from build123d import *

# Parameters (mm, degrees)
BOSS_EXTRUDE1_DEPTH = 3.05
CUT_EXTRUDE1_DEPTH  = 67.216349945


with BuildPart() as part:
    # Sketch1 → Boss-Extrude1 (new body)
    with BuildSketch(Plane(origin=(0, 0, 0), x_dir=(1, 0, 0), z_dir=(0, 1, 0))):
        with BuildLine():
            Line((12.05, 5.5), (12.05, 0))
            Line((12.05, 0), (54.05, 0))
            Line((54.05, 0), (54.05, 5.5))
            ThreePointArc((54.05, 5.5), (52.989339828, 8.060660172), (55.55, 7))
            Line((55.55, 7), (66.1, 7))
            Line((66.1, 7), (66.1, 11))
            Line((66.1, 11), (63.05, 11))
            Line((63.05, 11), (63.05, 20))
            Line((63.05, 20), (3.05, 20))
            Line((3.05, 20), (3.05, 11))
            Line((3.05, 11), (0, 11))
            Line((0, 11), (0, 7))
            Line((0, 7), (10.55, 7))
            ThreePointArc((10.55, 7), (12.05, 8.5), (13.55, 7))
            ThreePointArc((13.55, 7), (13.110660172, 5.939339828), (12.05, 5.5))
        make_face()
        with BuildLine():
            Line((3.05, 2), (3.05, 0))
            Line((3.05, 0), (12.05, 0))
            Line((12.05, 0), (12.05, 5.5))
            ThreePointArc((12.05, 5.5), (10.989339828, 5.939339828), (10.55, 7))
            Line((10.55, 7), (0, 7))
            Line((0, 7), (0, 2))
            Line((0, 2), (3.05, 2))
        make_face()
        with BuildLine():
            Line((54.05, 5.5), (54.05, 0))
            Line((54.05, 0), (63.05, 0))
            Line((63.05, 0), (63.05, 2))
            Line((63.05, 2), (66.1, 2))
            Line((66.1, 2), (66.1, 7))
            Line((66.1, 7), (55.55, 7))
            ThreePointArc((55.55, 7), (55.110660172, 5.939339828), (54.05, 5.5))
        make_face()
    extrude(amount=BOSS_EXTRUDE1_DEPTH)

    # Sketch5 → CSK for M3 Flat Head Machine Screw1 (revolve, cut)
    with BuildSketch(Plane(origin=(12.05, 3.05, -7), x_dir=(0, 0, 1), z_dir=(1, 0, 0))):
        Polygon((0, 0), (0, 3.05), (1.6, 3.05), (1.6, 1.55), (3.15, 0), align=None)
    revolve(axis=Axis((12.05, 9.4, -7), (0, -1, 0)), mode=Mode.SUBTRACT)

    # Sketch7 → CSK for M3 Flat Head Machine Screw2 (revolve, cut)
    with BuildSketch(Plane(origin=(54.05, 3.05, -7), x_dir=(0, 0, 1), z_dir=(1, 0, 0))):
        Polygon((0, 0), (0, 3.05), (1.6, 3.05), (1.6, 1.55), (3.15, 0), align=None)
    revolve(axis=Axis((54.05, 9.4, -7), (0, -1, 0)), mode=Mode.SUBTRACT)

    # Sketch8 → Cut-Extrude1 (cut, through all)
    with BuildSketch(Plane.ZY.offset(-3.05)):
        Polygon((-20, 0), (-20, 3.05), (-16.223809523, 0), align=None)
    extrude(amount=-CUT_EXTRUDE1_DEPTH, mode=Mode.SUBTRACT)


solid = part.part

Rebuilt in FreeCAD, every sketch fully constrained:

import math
import FreeCAD as App
import Part
import Sketcher
from FreeCAD import Vector
Q = App.Units.Quantity

doc = App.newDocument("Part")
body = doc.addObject("PartDesign::Body", "Body")

# Sketch on XZ plane
sketch1 = body.newObject("Sketcher::SketchObject", "Sketch")
sketch1.AttachmentSupport = (doc.getObject("XZ_Plane"), [""])
sketch1.MapMode = "FlatFace"
sketch1.addGeometry([
    Part.LineSegment(Vector(66.1, -11, 0), Vector(63, -11, 0)),  # 0
    Part.LineSegment(Vector(63, -11, 0), Vector(63, -20, 0)),  # 1
    Part.LineSegment(Vector(63, -20, 0), Vector(3, -20, 0)),  # 2
    Part.LineSegment(Vector(3, -20, 0), Vector(3, -11, 0)),  # 3
    Part.LineSegment(Vector(3, -11, 0), Vector(0, -11, 0)),  # 4
    Part.LineSegment(Vector(0, -11, 0), Vector(0, -2, 0)),  # 5
    Part.LineSegment(Vector(0, -2, 0), Vector(3, -2, 0)),  # 6
    Part.LineSegment(Vector(3, -2, 0), Vector(3, 0, 0)),  # 7
    Part.LineSegment(Vector(3, 0, 0), Vector(63, 0, 0)),  # 8
    Part.LineSegment(Vector(63, 0, 0), Vector(63, -2, 0)),  # 9
    Part.LineSegment(Vector(63, -2, 0), Vector(66.1, -2, 0)),  # 10
    Part.LineSegment(Vector(66.1, -2, 0), Vector(66.1, -11, 0)),  # 11
    Part.ArcOfCircle(Part.Circle(Vector(54, -7, 0), Vector(0, 0, 1), 1.5), math.radians(90), math.radians(360)),  # 12
    Part.ArcOfCircle(Part.Circle(Vector(54.1, -7, 0), Vector(0, 0, 1), 1.5), math.radians(0), math.radians(90)),  # 13
    Part.ArcOfCircle(Part.Circle(Vector(12.1, -7, 0), Vector(0, 0, 1), 1.5), math.radians(180), math.radians(360)),  # 14
    Part.ArcOfCircle(Part.Circle(Vector(12.1, -7, 0), Vector(0, 0, 1), 1.5), math.radians(0), math.radians(90)),  # 15
    Part.ArcOfCircle(Part.Circle(Vector(12, -7, 0), Vector(0, 0, 1), 1.5), math.radians(90), math.radians(180)),  # 16
], False)
sketch1.addConstraint([
    Sketcher.Constraint("Coincident", 0, 2, 1, 1),
    Sketcher.Constraint("Coincident", 1, 2, 2, 1),
    Sketcher.Constraint("Coincident", 2, 2, 3, 1),
    Sketcher.Constraint("Coincident", 3, 2, 4, 1),
    Sketcher.Constraint("Coincident", 4, 2, 5, 1),
    Sketcher.Constraint("Coincident", 5, 2, 6, 1),
    Sketcher.Constraint("Coincident", 6, 2, 7, 1),
    Sketcher.Constraint("Coincident", 7, 2, 8, 1),
    Sketcher.Constraint("Coincident", 8, 2, 9, 1),
    Sketcher.Constraint("Coincident", 9, 2, 10, 1),
    Sketcher.Constraint("Coincident", 10, 2, 11, 1),
    Sketcher.Constraint("Coincident", 11, 2, 0, 1),
    Sketcher.Constraint("Tangent", 12, 1, 13, 2),
    Sketcher.Constraint("Coincident", 13, 1, 12, 2),
    Sketcher.Constraint("Tangent", 14, 2, 15, 1),
    Sketcher.Constraint("Tangent", 15, 2, 16, 1),
    Sketcher.Constraint("Tangent", 16, 2, 14, 1),
    Sketcher.Constraint("Horizontal", 0),
    Sketcher.Constraint("Vertical", 1),
    Sketcher.Constraint("Horizontal", 2),
    Sketcher.Constraint("Vertical", 3),
    Sketcher.Constraint("Horizontal", 4),
    Sketcher.Constraint("Vertical", 5),
    Sketcher.Constraint("Horizontal", 6),
    Sketcher.Constraint("Vertical", 7),
    Sketcher.Constraint("Horizontal", 8),
    Sketcher.Constraint("Vertical", 9),
    Sketcher.Constraint("Horizontal", 10),
    Sketcher.Constraint("Vertical", 11),
    Sketcher.Constraint("Equal", 13, 14),
    Sketcher.Constraint("PointOnObject", 4, 2, -2),
    Sketcher.Constraint("PointOnObject", 7, 2, -1),
    Sketcher.Constraint("Horizontal", 13, 3, 14, 3),
    Sketcher.Constraint("Horizontal", 0, 2, 3, 2),
    Sketcher.Constraint("Horizontal", 6, 2, 9, 2),
    Sketcher.Constraint("Horizontal", 16, 3, 13, 1),
    Sketcher.Constraint("Horizontal", 13, 1, 14, 2),
    Sketcher.Constraint("Horizontal", 14, 2, 16, 2),
    Sketcher.Constraint("Vertical", 3, 2, 6, 2),
    Sketcher.Constraint("Vertical", 1, 2, 8, 2),
    Sketcher.Constraint("Vertical", 13, 3, 12, 1),
    Sketcher.Constraint("Vertical", 16, 3, 15, 2),
    Sketcher.Constraint("Equal", 0, 4),
    Sketcher.Constraint("Equal", 3, 5),
    Sketcher.Constraint("Radius", 12, Q("1.5 mm")),
    Sketcher.Constraint("DistanceX", 2, 2, 2, 1, Q("60 mm")),
    Sketcher.Constraint("DistanceY", 1, 2, 1, 1, Q("9 mm")),
    Sketcher.Constraint("DistanceY", 7, 1, 7, 2, Q("2 mm")),
    Sketcher.Constraint("DistanceY", 12, 3, -1, 1, Q("7 mm")),
    Sketcher.Constraint("DistanceX", 14, 3, 12, 3, Q("42 mm")),
    Sketcher.Constraint("DistanceX", 13, 3, 0, 2, Q("9 mm")),
    Sketcher.Constraint("DistanceX", 0, 2, 0, 1, Q("3.05 mm")),
])
pad1 = body.newObject("PartDesign::Pad", "Pad")
pad1.Profile = sketch1
pad1.Length = 3.05
pad1.Reversed = True

# Sketch on YZ plane
sketch2 = body.newObject("Sketcher::SketchObject", "Sketch001")
sketch2.AttachmentSupport = (doc.getObject("YZ_Plane"), [""])
sketch2.MapMode = "FlatFace"
sketch2.AttachmentOffset = App.Placement(Vector(0, 0, 12.05), App.Rotation())
sketch2.addGeometry([
    Part.LineSegment(Vector(0, -7, 0), Vector(3, -7, 0)),  # 0
    Part.LineSegment(Vector(3, -7, 0), Vector(3, -3.9, 0)),  # 1
    Part.LineSegment(Vector(3, -3.9, 0), Vector(1.5, -5.4, 0)),  # 2
    Part.LineSegment(Vector(1.5, -5.4, 0), Vector(0, -5.4, 0)),  # 3
    Part.LineSegment(Vector(0, -5.4, 0), Vector(0, -7, 0)),  # 4
], False)
sketch2.addGeometry(Part.LineSegment(Vector(3, -7, 0), Vector(0, -7, 0)), True)  # axis
sketch2.addConstraint([
    Sketcher.Constraint("Coincident", 0, 2, 1, 1),
    Sketcher.Constraint("Coincident", 1, 2, 2, 1),
    Sketcher.Constraint("Coincident", 2, 2, 3, 1),
    Sketcher.Constraint("Coincident", 3, 2, 4, 1),
    Sketcher.Constraint("Coincident", 4, 2, 0, 1),
    Sketcher.Constraint("Horizontal", 0),
    Sketcher.Constraint("Vertical", 1),
    Sketcher.Constraint("Horizontal", 3),
    Sketcher.Constraint("Vertical", 4),
    Sketcher.Constraint("Horizontal", 5),
    Sketcher.Constraint("Coincident", 5, 1, 0, 2),
    Sketcher.Constraint("PointOnObject", 3, 2, -2),
    Sketcher.Constraint("PointOnObject", 5, 2, -2),
    Sketcher.Constraint("Angle", 2, Q("-135 deg")),
    Sketcher.Constraint("DistanceX", 3, 2, 3, 1, Q("1.5 mm")),
    Sketcher.Constraint("DistanceY", 4, 2, 4, 1, Q("1.6 mm")),
    Sketcher.Constraint("DistanceY", 0, 2, -1, 1, Q("7 mm")),
    Sketcher.Constraint("DistanceX", 0, 1, 0, 2, Q("3.05 mm")),
])
groove = body.newObject("PartDesign::Groove", "Groove")
groove.Profile = sketch2
groove.ReferenceAxis = (sketch2, ["Axis0"])
groove.Angle = 360

# Sketch on YZ plane
sketch3 = body.newObject("Sketcher::SketchObject", "Sketch002")
sketch3.AttachmentSupport = (doc.getObject("YZ_Plane"), [""])
sketch3.MapMode = "FlatFace"
sketch3.AttachmentOffset = App.Placement(Vector(0, 0, 54.05), App.Rotation())
sketch3.addGeometry([
    Part.LineSegment(Vector(0, -7, 0), Vector(3, -7, 0)),  # 0
    Part.LineSegment(Vector(3, -7, 0), Vector(3, -3.9, 0)),  # 1
    Part.LineSegment(Vector(3, -3.9, 0), Vector(1.5, -5.4, 0)),  # 2
    Part.LineSegment(Vector(1.5, -5.4, 0), Vector(0, -5.4, 0)),  # 3
    Part.LineSegment(Vector(0, -5.4, 0), Vector(0, -7, 0)),  # 4
], False)
sketch3.addGeometry(Part.LineSegment(Vector(3, -7, 0), Vector(0, -7, 0)), True)  # axis
sketch3.addConstraint([
    Sketcher.Constraint("Coincident", 0, 2, 1, 1),
    Sketcher.Constraint("Coincident", 1, 2, 2, 1),
    Sketcher.Constraint("Coincident", 2, 2, 3, 1),
    Sketcher.Constraint("Coincident", 3, 2, 4, 1),
    Sketcher.Constraint("Coincident", 4, 2, 0, 1),
    Sketcher.Constraint("Horizontal", 0),
    Sketcher.Constraint("Vertical", 1),
    Sketcher.Constraint("Horizontal", 3),
    Sketcher.Constraint("Vertical", 4),
    Sketcher.Constraint("Horizontal", 5),
    Sketcher.Constraint("Coincident", 5, 1, 0, 2),
    Sketcher.Constraint("PointOnObject", 3, 2, -2),
    Sketcher.Constraint("PointOnObject", 5, 2, -2),
    Sketcher.Constraint("Angle", 2, Q("-135 deg")),
    Sketcher.Constraint("DistanceX", 3, 2, 3, 1, Q("1.5 mm")),
    Sketcher.Constraint("DistanceY", 4, 2, 4, 1, Q("1.6 mm")),
    Sketcher.Constraint("DistanceY", 0, 2, -1, 1, Q("7 mm")),
    Sketcher.Constraint("DistanceX", 0, 1, 0, 2, Q("3.05 mm")),
])
groove2 = body.newObject("PartDesign::Groove", "Groove001")
groove2.Profile = sketch3
groove2.ReferenceAxis = (sketch3, ["Axis0"])
groove2.Angle = 360

# Sketch on YZ plane
sketch4 = body.newObject("Sketcher::SketchObject", "Sketch003")
sketch4.AttachmentSupport = (doc.getObject("YZ_Plane"), [""])
sketch4.MapMode = "FlatFace"
sketch4.AttachmentOffset = App.Placement(Vector(0, 0, 3.05), App.Rotation())
sketch4.addGeometry([
    Part.LineSegment(Vector(3, -20, 0), Vector(0, -20, 0)),
    Part.LineSegment(Vector(0, -20, 0), Vector(0, -16.2, 0)),
    Part.LineSegment(Vector(0, -16.2, 0), Vector(3, -20, 0)),
], False)
sketch4.addConstraint([
    Sketcher.Constraint("Coincident", 0, 2, 1, 1),
    Sketcher.Constraint("Coincident", 1, 2, 2, 1),
    Sketcher.Constraint("Coincident", 2, 2, 0, 1),
    Sketcher.Constraint("Horizontal", 0),
    Sketcher.Constraint("Vertical", 1),
    Sketcher.Constraint("PointOnObject", 0, 2, -2),
    Sketcher.Constraint("DistanceY", 0, 2, -1, 1, Q("20 mm")),
    Sketcher.Constraint("DistanceX", 0, 2, 0, 1, Q("3.05 mm")),
    Sketcher.Constraint("DistanceY", 1, 1, 1, 2, Q("3.77619 mm")),
])
pocket1 = body.newObject("PartDesign::Pocket", "Pocket")
pocket1.Profile = sketch4
pocket1.Type = "ThroughAll"
pocket1.Reversed = True

doc.recompute()
